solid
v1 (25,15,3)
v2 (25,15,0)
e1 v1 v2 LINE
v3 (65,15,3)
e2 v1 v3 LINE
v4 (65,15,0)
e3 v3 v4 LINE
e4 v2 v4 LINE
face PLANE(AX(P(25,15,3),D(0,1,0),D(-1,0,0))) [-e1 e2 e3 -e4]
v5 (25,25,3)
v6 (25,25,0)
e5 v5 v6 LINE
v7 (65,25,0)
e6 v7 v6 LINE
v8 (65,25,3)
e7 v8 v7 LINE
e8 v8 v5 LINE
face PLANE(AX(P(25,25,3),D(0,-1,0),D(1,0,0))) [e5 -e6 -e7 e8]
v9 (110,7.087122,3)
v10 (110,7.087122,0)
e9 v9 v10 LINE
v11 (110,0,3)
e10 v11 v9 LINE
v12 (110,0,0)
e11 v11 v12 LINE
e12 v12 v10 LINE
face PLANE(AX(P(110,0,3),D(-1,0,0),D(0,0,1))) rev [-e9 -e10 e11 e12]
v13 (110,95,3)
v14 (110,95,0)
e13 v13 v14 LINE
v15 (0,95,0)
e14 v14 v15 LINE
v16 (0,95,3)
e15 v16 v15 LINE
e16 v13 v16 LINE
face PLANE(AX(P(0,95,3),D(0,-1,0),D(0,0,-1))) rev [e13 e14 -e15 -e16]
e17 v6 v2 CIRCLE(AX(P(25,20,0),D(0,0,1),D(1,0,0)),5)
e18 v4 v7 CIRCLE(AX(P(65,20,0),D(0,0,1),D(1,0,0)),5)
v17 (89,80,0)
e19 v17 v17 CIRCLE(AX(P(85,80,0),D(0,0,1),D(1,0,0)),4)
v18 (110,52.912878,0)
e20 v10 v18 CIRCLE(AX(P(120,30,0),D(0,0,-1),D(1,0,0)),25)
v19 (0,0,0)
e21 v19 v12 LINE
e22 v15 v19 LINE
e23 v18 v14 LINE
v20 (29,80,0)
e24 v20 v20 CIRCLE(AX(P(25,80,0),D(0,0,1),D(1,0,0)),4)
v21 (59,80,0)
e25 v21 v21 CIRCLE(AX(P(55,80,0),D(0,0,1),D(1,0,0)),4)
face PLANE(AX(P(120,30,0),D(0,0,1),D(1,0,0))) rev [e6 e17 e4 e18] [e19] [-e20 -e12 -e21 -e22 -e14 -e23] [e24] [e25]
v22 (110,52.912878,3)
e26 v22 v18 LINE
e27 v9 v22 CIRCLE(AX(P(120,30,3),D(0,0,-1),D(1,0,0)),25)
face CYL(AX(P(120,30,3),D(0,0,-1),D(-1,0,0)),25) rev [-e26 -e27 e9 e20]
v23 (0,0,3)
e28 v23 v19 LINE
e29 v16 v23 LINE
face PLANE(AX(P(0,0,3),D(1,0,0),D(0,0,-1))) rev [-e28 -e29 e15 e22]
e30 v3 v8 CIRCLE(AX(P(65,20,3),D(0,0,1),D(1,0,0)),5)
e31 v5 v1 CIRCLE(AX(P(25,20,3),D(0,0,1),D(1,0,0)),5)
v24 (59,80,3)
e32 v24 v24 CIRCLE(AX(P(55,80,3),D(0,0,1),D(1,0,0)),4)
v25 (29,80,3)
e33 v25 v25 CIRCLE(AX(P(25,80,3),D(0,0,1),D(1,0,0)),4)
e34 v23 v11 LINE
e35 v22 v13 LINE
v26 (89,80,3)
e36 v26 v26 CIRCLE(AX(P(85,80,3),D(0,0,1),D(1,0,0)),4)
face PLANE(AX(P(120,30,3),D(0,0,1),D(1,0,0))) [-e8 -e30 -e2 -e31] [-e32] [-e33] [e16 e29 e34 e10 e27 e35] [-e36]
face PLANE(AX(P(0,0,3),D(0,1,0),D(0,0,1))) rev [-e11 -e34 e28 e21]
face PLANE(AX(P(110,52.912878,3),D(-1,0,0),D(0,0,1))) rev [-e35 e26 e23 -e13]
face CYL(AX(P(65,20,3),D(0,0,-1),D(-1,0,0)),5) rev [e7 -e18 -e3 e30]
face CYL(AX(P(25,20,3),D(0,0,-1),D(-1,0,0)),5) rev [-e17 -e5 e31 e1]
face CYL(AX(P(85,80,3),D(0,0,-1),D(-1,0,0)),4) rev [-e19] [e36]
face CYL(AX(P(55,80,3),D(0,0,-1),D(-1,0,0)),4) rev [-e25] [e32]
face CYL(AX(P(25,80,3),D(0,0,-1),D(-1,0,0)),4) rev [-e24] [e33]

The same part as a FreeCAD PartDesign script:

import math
import FreeCAD as App
import Part
import Sketcher

V = App.Vector
Q = App.Units.Quantity

doc = App.newDocument("Part")
params = doc.addObject("Spreadsheet::Sheet", "Params")
for row, (alias, value) in enumerate([
    ("sketch1_diameter", "8 mm"),
    ("sketch1_radius", "25 mm"),
    ("sketch1_radius2", "5 mm"),
    ("sketch1_width", "110 mm"),
    ("sketch1_width2", "40 mm"),
    ("pad1_length", "3 mm"),
], start=1):
    params.set(f"A{row}", alias)
    params.set(f"B{row}", "=" + value)
    params.setAlias(f"B{row}", alias)

body = doc.addObject("PartDesign::Body", "Body")

sketch1 = body.newObject("Sketcher::SketchObject", "Sketch")
sketch1.AttachmentSupport = (doc.getObject("XY_Plane"), [""])
sketch1.MapMode = "FlatFace"
sketch1.addGeometry([
    Part.LineSegment(V(0, 0, 0), V(110, 0, 0)),
    Part.LineSegment(V(110, 0, 0), V(110, 7.1, 0)),
    Part.ArcOfCircle(Part.Circle(V(120, 30, 0), V(0, 0, 1), 25), math.radians(114), math.radians(246)),
    Part.LineSegment(V(110, 52.9, 0), V(110, 95, 0)),
    Part.LineSegment(V(110, 95, 0), V(0, 95, 0)),
    Part.LineSegment(V(0, 95, 0), V(0, 0, 0)),
    Part.ArcOfCircle(Part.Circle(V(25, 20, 0), V(0, 0, 1), 5), math.radians(90), math.radians(270)),
    Part.LineSegment(V(25, 25, 0), V(65, 25, 0)),
    Part.ArcOfCircle(Part.Circle(V(65, 20, 0), V(0, 0, 1), 5), math.radians(-90), math.radians(90)),
    Part.LineSegment(V(65, 15, 0), V(25, 15, 0)),
    Part.Circle(V(25, 80, 0), V(0, 0, 1), 4),
    Part.Circle(V(55, 80, 0), V(0, 0, 1), 4),
    Part.Circle(V(85, 80, 0), V(0, 0, 1), 4),
], False)
sketch1.addConstraint([
    Sketcher.Constraint("Coincident", 0, 2, 1, 1),
    Sketcher.Constraint("Coincident", 1, 2, 2, 2),
    Sketcher.Constraint("Coincident", 2, 1, 3, 1),
    Sketcher.Constraint("Coincident", 3, 2, 4, 1),
    Sketcher.Constraint("Coincident", 4, 2, 5, 1),
    Sketcher.Constraint("Coincident", 5, 2, 0, 1),
    Sketcher.Constraint("Tangent", 6, 1, 7, 1),
    Sketcher.Constraint("Tangent", 7, 2, 8, 2),
    Sketcher.Constraint("Tangent", 8, 1, 9, 1),
    Sketcher.Constraint("Tangent", 9, 2, 6, 2),
    Sketcher.Constraint("Horizontal", 0),
    Sketcher.Constraint("Vertical", 1),
    Sketcher.Constraint("Vertical", 3),
    Sketcher.Constraint("Horizontal", 4),
    Sketcher.Constraint("Vertical", 5),
    Sketcher.Constraint("Horizontal", 7),
    Sketcher.Constraint("Horizontal", 9),
    Sketcher.Constraint("Coincident", 5, 2, -1, 1),
    Sketcher.Constraint("Equal", 10, 11),
    Sketcher.Constraint("Equal", 11, 12),
    Sketcher.Constraint("Horizontal", 10, 3, 11, 3),
    Sketcher.Constraint("Horizontal", 11, 3, 12, 3),
    Sketcher.Constraint("Vertical", 6, 3, 10, 3),
    Sketcher.Constraint("Vertical", 1, 2, 2, 1),
    Sketcher.Constraint("Diameter", 10, Q("8 mm")),
    Sketcher.Constraint("Radius", 2, Q("25 mm")),
    Sketcher.Constraint("Radius", 6, Q("5 mm")),
    Sketcher.Constraint("DistanceX", 0, 1, 0, 2, Q("110 mm")),
    Sketcher.Constraint("DistanceX", 7, 1, 7, 2, Q("40 mm")),
    Sketcher.Constraint("DistanceY", 5, 2, 5, 1, Q("95 mm")),
    Sketcher.Constraint("DistanceX", -1, 1, 2, 3, Q("120 mm")),
    Sketcher.Constraint("DistanceY", -1, 1, 2, 3, Q("30 mm")),
    Sketcher.Constraint("DistanceX", -1, 1, 6, 3, Q("25 mm")),
    Sketcher.Constraint("DistanceY", -1, 1, 6, 3, Q("20 mm")),
    Sketcher.Constraint("DistanceY", -1, 1, 10, 3, Q("80 mm")),
    Sketcher.Constraint("DistanceX", -1, 1, 11, 3, Q("55 mm")),
    Sketcher.Constraint("DistanceX", -1, 1, 12, 3, Q("85 mm")),
])
sketch1.setExpression("Constraints[24]", "Params.sketch1_diameter")
sketch1.setExpression("Constraints[25]", "Params.sketch1_radius")
sketch1.setExpression("Constraints[26]", "Params.sketch1_radius2")
sketch1.setExpression("Constraints[27]", "Params.sketch1_width")
sketch1.setExpression("Constraints[28]", "Params.sketch1_width2")
pad1 = body.newObject("PartDesign::Pad", "Pad")
pad1.Profile = sketch1
pad1.setExpression("Length", "Params.pad1_length")

doc.recompute()
